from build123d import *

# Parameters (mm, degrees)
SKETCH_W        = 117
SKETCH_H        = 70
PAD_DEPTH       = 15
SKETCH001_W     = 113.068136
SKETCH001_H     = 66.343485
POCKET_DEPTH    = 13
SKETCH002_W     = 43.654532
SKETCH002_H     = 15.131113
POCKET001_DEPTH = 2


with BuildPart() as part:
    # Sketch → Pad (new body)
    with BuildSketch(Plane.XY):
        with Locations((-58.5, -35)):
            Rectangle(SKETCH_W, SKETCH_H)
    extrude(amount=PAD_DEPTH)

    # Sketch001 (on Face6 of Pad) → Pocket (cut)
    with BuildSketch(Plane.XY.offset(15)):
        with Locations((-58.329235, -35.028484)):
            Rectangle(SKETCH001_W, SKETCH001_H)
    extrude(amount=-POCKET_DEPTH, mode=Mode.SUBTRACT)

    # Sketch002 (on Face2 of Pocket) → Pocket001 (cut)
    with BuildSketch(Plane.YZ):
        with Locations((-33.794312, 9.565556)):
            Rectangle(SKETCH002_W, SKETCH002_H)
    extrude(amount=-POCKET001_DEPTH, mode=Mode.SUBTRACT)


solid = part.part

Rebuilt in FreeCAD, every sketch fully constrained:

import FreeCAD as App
import Part
import Sketcher

doc = App.newDocument("Part")
body = doc.addObject("PartDesign::Body", "Body")

# Sketch on XY plane
sketch1 = body.newObject("Sketcher::SketchObject", "Sketch")
sketch1.AttachmentSupport = (doc.getObject("XY_Plane"), [""])
sketch1.MapMode = "FlatFace"
sketch1.addGeometry([
    Part.LineSegment(App.Vector(-117, 0, 0), App.Vector(-117, -70, 0)),
    Part.LineSegment(App.Vector(-117, -70, 0), App.Vector(0, -70, 0)),
    Part.LineSegment(App.Vector(0, -70, 0), App.Vector(0, 0, 0)),
    Part.LineSegment(App.Vector(0, 0, 0), App.Vector(-117, 0, 0)),
], False)
sketch1.addConstraint([
    Sketcher.Constraint("Coincident", 0, 2, 1, 1),
    Sketcher.Constraint("Coincident", 1, 2, 2, 1),
    Sketcher.Constraint("Coincident", 2, 2, 3, 1),
    Sketcher.Constraint("Coincident", 3, 2, 0, 1),
    Sketcher.Constraint("Vertical", 0),
    Sketcher.Constraint("Horizontal", 1),
    Sketcher.Constraint("Vertical", 2),
    Sketcher.Constraint("Horizontal", 3),
    Sketcher.Constraint("Coincident", 2, 2, -1, 1),
    Sketcher.Constraint("DistanceX", 1, 1, 1, 2, 117.0),
    Sketcher.Constraint("DistanceY", 0, 2, 0, 1, 70.0),
])
pad1 = body.newObject("PartDesign::Pad", "Pad")
pad1.Profile = sketch1
pad1.Length = 15

# Sketch on XY plane
sketch2 = body.newObject("Sketcher::SketchObject", "Sketch001")
sketch2.AttachmentSupport = (doc.getObject("XY_Plane"), [""])
sketch2.MapMode = "FlatFace"
sketch2.AttachmentOffset = App.Placement(App.Vector(0, 0, 15), App.Rotation())
sketch2.addGeometry([
    Part.LineSegment(App.Vector(-115, -2, 0), App.Vector(-115, -68, 0)),
    Part.LineSegment(App.Vector(-115, -68, 0), App.Vector(-2, -68, 0)),
    Part.LineSegment(App.Vector(-2, -68, 0), App.Vector(-2, -2, 0)),
    Part.LineSegment(App.Vector(-2, -2, 0), App.Vector(-115, -2, 0)),
], False)
sketch2.addConstraint([
    Sketcher.Constraint("Coincident", 0, 2, 1, 1),
    Sketcher.Constraint("Coincident", 1, 2, 2, 1),
    Sketcher.Constraint("Coincident", 2, 2, 3, 1),
    Sketcher.Constraint("Coincident", 3, 2, 0, 1),
    Sketcher.Constraint("Vertical", 0),
    Sketcher.Constraint("Horizontal", 1),
    Sketcher.Constraint("Vertical", 2),
    Sketcher.Constraint("Horizontal", 3),
    Sketcher.Constraint("DistanceX", 1, 1, 1, 2, 113.068136),
    Sketcher.Constraint("DistanceY", 0, 2, 0, 1, 66.343485),
    Sketcher.Constraint("DistanceY", 2, 2, -1, 1, 1.856742),
    Sketcher.Constraint("DistanceX", 0, 2, -1, 1, 114.863303),
])
pocket1 = body.newObject("PartDesign::Pocket", "Pocket")
pocket1.Profile = sketch2
pocket1.Length = 13

# Sketch on YZ plane
sketch3 = body.newObject("Sketcher::SketchObject", "Sketch002")
sketch3.AttachmentSupport = (doc.getObject("YZ_Plane"), [""])
sketch3.MapMode = "FlatFace"
sketch3.addGeometry([
    Part.LineSegment(App.Vector(-56, 17, 0), App.Vector(-56, 2, 0)),
    Part.LineSegment(App.Vector(-56, 2, 0), App.Vector(-12, 2, 0)),
    Part.LineSegment(App.Vector(-12, 2, 0), App.Vector(-12, 17, 0)),
    Part.LineSegment(App.Vector(-12, 17, 0), App.Vector(-56, 17, 0)),
], False)
sketch3.addConstraint([
    Sketcher.Constraint("Coincident", 0, 2, 1, 1),
    Sketcher.Constraint("Coincident", 1, 2, 2, 1),
    Sketcher.Constraint("Coincident", 2, 2, 3, 1),
    Sketcher.Constraint("Coincident", 3, 2, 0, 1),
    Sketcher.Constraint("Vertical", 0),
    Sketcher.Constraint("Horizontal", 1),
    Sketcher.Constraint("Vertical", 2),
    Sketcher.Constraint("Horizontal", 3),
    Sketcher.Constraint("DistanceY", -1, 1, 0, 2, 1.999999),
    Sketcher.Constraint("DistanceX", 1, 1, 1, 2, 43.654532),
    Sketcher.Constraint("DistanceY", 0, 2, 0, 1, 15.131113),
    Sketcher.Constraint("DistanceX", 0, 2, -1, 1, 55.621578),
])
pocket2 = body.newObject("PartDesign::Pocket", "Pocket001")
pocket2.Profile = sketch3
pocket2.Length = 2

doc.recompute()
